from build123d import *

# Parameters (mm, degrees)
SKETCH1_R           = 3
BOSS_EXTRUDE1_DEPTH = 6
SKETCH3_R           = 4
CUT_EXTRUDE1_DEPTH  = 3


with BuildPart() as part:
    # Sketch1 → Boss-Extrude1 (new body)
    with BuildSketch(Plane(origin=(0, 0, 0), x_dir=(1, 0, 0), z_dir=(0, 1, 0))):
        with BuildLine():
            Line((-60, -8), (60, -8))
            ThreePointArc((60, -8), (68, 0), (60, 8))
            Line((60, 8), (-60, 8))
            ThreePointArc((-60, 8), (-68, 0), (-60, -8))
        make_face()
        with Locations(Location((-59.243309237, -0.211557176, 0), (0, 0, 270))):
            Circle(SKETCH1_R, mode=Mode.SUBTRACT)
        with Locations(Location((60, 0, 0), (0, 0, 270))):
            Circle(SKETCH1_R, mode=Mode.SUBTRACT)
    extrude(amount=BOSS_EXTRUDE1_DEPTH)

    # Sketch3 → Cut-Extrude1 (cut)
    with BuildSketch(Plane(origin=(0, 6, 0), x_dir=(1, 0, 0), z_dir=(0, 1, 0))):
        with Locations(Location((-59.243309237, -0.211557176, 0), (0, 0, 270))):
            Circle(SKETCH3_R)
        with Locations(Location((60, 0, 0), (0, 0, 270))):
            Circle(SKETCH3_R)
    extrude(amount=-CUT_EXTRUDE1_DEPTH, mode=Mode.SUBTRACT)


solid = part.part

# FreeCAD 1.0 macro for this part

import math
import FreeCAD as App
import Part
import Sketcher

V = App.Vector
Q = App.Units.Quantity

doc = App.newDocument("Part")
body = doc.addObject("PartDesign::Body", "Body")

# Sketch on XZ plane
sketch1 = body.newObject("Sketcher::SketchObject", "Sketch")
sketch1.AttachmentSupport = (doc.getObject("XZ_Plane"), [""])
sketch1.MapMode = "FlatFace"
sketch1.addGeometry([
    Part.LineSegment(V(-60, 8, 0), V(60, 8, 0)),  # 0
    Part.ArcOfCircle(Part.Circle(V(60, 0, 0), V(0, 0, 1), 8), math.radians(-90), math.radians(90)),  # 1
    Part.LineSegment(V(60, -8, 0), V(-60, -8, 0)),  # 2
    Part.ArcOfCircle(Part.Circle(V(-60, 0, 0), V(0, 0, 1), 8), math.radians(90), math.radians(270)),  # 3
    Part.Circle(V(-59.243309, 0.211557, 0), V(0, 0, 1), 3),  # 4
    Part.Circle(V(60, 0, 0), V(0, 0, 1), 3),  # 5
], False)
sketch1.addConstraint([
    Sketcher.Constraint("Tangent", 0, 2, 1, 2),
    Sketcher.Constraint("Tangent", 1, 1, 2, 1),
    Sketcher.Constraint("Tangent", 2, 2, 3, 2),
    Sketcher.Constraint("Tangent", 3, 1, 0, 1),
    Sketcher.Constraint("Horizontal", 0),
    Sketcher.Constraint("Horizontal", 2),
    Sketcher.Constraint("Coincident", 5, 3, 1, 3),
    Sketcher.Constraint("Equal", 4, 5),
    Sketcher.Constraint("Symmetric", 1, 3, 3, 3, -1, 1),
    Sketcher.Constraint("Diameter", 4, Q("6 mm")),
    Sketcher.Constraint("Radius", 1, Q("8 mm")),
    Sketcher.Constraint("DistanceX", 0, 1, 0, 2, Q("120 mm")),
    Sketcher.Constraint("DistanceX", 4, 3, -1, 1, Q("59.243309 mm")),
    Sketcher.Constraint("DistanceY", -1, 1, 4, 3, Q("0.211557 mm")),
])
pad1 = body.newObject("PartDesign::Pad", "Pad")
pad1.Profile = sketch1
pad1.Length = 6
pad1.Reversed = True

# Sketch on XZ plane
sketch2 = body.newObject("Sketcher::SketchObject", "Sketch001")
sketch2.AttachmentSupport = (doc.getObject("XZ_Plane"), [""])
sketch2.MapMode = "FlatFace"
sketch2.AttachmentOffset = App.Placement(V(0, 0, -6), App.Rotation())
sketch2.addGeometry([
    Part.Circle(V(-59.243309, 0.211557, 0), V(0, 0, 1), 4),
    Part.Circle(V(60, 0, 0), V(0, 0, 1), 4),
], False)
sketch2.addConstraint([
    Sketcher.Constraint("Equal", 0, 1),
    Sketcher.Constraint("PointOnObject", 1, 3, -1),
    Sketcher.Constraint("Diameter", 0, Q("8 mm")),
    Sketcher.Constraint("DistanceX", -1, 1, 1, 3, Q("60 mm")),
    Sketcher.Constraint("DistanceX", 0, 3, -1, 1, Q("59.243309 mm")),
    Sketcher.Constraint("DistanceY", -1, 1, 0, 3, Q("0.211557 mm")),
])
pocket1 = body.newObject("PartDesign::Pocket", "Pocket")
pocket1.Profile = sketch2
pocket1.Length = 3
pocket1.Reversed = True

doc.recompute()
